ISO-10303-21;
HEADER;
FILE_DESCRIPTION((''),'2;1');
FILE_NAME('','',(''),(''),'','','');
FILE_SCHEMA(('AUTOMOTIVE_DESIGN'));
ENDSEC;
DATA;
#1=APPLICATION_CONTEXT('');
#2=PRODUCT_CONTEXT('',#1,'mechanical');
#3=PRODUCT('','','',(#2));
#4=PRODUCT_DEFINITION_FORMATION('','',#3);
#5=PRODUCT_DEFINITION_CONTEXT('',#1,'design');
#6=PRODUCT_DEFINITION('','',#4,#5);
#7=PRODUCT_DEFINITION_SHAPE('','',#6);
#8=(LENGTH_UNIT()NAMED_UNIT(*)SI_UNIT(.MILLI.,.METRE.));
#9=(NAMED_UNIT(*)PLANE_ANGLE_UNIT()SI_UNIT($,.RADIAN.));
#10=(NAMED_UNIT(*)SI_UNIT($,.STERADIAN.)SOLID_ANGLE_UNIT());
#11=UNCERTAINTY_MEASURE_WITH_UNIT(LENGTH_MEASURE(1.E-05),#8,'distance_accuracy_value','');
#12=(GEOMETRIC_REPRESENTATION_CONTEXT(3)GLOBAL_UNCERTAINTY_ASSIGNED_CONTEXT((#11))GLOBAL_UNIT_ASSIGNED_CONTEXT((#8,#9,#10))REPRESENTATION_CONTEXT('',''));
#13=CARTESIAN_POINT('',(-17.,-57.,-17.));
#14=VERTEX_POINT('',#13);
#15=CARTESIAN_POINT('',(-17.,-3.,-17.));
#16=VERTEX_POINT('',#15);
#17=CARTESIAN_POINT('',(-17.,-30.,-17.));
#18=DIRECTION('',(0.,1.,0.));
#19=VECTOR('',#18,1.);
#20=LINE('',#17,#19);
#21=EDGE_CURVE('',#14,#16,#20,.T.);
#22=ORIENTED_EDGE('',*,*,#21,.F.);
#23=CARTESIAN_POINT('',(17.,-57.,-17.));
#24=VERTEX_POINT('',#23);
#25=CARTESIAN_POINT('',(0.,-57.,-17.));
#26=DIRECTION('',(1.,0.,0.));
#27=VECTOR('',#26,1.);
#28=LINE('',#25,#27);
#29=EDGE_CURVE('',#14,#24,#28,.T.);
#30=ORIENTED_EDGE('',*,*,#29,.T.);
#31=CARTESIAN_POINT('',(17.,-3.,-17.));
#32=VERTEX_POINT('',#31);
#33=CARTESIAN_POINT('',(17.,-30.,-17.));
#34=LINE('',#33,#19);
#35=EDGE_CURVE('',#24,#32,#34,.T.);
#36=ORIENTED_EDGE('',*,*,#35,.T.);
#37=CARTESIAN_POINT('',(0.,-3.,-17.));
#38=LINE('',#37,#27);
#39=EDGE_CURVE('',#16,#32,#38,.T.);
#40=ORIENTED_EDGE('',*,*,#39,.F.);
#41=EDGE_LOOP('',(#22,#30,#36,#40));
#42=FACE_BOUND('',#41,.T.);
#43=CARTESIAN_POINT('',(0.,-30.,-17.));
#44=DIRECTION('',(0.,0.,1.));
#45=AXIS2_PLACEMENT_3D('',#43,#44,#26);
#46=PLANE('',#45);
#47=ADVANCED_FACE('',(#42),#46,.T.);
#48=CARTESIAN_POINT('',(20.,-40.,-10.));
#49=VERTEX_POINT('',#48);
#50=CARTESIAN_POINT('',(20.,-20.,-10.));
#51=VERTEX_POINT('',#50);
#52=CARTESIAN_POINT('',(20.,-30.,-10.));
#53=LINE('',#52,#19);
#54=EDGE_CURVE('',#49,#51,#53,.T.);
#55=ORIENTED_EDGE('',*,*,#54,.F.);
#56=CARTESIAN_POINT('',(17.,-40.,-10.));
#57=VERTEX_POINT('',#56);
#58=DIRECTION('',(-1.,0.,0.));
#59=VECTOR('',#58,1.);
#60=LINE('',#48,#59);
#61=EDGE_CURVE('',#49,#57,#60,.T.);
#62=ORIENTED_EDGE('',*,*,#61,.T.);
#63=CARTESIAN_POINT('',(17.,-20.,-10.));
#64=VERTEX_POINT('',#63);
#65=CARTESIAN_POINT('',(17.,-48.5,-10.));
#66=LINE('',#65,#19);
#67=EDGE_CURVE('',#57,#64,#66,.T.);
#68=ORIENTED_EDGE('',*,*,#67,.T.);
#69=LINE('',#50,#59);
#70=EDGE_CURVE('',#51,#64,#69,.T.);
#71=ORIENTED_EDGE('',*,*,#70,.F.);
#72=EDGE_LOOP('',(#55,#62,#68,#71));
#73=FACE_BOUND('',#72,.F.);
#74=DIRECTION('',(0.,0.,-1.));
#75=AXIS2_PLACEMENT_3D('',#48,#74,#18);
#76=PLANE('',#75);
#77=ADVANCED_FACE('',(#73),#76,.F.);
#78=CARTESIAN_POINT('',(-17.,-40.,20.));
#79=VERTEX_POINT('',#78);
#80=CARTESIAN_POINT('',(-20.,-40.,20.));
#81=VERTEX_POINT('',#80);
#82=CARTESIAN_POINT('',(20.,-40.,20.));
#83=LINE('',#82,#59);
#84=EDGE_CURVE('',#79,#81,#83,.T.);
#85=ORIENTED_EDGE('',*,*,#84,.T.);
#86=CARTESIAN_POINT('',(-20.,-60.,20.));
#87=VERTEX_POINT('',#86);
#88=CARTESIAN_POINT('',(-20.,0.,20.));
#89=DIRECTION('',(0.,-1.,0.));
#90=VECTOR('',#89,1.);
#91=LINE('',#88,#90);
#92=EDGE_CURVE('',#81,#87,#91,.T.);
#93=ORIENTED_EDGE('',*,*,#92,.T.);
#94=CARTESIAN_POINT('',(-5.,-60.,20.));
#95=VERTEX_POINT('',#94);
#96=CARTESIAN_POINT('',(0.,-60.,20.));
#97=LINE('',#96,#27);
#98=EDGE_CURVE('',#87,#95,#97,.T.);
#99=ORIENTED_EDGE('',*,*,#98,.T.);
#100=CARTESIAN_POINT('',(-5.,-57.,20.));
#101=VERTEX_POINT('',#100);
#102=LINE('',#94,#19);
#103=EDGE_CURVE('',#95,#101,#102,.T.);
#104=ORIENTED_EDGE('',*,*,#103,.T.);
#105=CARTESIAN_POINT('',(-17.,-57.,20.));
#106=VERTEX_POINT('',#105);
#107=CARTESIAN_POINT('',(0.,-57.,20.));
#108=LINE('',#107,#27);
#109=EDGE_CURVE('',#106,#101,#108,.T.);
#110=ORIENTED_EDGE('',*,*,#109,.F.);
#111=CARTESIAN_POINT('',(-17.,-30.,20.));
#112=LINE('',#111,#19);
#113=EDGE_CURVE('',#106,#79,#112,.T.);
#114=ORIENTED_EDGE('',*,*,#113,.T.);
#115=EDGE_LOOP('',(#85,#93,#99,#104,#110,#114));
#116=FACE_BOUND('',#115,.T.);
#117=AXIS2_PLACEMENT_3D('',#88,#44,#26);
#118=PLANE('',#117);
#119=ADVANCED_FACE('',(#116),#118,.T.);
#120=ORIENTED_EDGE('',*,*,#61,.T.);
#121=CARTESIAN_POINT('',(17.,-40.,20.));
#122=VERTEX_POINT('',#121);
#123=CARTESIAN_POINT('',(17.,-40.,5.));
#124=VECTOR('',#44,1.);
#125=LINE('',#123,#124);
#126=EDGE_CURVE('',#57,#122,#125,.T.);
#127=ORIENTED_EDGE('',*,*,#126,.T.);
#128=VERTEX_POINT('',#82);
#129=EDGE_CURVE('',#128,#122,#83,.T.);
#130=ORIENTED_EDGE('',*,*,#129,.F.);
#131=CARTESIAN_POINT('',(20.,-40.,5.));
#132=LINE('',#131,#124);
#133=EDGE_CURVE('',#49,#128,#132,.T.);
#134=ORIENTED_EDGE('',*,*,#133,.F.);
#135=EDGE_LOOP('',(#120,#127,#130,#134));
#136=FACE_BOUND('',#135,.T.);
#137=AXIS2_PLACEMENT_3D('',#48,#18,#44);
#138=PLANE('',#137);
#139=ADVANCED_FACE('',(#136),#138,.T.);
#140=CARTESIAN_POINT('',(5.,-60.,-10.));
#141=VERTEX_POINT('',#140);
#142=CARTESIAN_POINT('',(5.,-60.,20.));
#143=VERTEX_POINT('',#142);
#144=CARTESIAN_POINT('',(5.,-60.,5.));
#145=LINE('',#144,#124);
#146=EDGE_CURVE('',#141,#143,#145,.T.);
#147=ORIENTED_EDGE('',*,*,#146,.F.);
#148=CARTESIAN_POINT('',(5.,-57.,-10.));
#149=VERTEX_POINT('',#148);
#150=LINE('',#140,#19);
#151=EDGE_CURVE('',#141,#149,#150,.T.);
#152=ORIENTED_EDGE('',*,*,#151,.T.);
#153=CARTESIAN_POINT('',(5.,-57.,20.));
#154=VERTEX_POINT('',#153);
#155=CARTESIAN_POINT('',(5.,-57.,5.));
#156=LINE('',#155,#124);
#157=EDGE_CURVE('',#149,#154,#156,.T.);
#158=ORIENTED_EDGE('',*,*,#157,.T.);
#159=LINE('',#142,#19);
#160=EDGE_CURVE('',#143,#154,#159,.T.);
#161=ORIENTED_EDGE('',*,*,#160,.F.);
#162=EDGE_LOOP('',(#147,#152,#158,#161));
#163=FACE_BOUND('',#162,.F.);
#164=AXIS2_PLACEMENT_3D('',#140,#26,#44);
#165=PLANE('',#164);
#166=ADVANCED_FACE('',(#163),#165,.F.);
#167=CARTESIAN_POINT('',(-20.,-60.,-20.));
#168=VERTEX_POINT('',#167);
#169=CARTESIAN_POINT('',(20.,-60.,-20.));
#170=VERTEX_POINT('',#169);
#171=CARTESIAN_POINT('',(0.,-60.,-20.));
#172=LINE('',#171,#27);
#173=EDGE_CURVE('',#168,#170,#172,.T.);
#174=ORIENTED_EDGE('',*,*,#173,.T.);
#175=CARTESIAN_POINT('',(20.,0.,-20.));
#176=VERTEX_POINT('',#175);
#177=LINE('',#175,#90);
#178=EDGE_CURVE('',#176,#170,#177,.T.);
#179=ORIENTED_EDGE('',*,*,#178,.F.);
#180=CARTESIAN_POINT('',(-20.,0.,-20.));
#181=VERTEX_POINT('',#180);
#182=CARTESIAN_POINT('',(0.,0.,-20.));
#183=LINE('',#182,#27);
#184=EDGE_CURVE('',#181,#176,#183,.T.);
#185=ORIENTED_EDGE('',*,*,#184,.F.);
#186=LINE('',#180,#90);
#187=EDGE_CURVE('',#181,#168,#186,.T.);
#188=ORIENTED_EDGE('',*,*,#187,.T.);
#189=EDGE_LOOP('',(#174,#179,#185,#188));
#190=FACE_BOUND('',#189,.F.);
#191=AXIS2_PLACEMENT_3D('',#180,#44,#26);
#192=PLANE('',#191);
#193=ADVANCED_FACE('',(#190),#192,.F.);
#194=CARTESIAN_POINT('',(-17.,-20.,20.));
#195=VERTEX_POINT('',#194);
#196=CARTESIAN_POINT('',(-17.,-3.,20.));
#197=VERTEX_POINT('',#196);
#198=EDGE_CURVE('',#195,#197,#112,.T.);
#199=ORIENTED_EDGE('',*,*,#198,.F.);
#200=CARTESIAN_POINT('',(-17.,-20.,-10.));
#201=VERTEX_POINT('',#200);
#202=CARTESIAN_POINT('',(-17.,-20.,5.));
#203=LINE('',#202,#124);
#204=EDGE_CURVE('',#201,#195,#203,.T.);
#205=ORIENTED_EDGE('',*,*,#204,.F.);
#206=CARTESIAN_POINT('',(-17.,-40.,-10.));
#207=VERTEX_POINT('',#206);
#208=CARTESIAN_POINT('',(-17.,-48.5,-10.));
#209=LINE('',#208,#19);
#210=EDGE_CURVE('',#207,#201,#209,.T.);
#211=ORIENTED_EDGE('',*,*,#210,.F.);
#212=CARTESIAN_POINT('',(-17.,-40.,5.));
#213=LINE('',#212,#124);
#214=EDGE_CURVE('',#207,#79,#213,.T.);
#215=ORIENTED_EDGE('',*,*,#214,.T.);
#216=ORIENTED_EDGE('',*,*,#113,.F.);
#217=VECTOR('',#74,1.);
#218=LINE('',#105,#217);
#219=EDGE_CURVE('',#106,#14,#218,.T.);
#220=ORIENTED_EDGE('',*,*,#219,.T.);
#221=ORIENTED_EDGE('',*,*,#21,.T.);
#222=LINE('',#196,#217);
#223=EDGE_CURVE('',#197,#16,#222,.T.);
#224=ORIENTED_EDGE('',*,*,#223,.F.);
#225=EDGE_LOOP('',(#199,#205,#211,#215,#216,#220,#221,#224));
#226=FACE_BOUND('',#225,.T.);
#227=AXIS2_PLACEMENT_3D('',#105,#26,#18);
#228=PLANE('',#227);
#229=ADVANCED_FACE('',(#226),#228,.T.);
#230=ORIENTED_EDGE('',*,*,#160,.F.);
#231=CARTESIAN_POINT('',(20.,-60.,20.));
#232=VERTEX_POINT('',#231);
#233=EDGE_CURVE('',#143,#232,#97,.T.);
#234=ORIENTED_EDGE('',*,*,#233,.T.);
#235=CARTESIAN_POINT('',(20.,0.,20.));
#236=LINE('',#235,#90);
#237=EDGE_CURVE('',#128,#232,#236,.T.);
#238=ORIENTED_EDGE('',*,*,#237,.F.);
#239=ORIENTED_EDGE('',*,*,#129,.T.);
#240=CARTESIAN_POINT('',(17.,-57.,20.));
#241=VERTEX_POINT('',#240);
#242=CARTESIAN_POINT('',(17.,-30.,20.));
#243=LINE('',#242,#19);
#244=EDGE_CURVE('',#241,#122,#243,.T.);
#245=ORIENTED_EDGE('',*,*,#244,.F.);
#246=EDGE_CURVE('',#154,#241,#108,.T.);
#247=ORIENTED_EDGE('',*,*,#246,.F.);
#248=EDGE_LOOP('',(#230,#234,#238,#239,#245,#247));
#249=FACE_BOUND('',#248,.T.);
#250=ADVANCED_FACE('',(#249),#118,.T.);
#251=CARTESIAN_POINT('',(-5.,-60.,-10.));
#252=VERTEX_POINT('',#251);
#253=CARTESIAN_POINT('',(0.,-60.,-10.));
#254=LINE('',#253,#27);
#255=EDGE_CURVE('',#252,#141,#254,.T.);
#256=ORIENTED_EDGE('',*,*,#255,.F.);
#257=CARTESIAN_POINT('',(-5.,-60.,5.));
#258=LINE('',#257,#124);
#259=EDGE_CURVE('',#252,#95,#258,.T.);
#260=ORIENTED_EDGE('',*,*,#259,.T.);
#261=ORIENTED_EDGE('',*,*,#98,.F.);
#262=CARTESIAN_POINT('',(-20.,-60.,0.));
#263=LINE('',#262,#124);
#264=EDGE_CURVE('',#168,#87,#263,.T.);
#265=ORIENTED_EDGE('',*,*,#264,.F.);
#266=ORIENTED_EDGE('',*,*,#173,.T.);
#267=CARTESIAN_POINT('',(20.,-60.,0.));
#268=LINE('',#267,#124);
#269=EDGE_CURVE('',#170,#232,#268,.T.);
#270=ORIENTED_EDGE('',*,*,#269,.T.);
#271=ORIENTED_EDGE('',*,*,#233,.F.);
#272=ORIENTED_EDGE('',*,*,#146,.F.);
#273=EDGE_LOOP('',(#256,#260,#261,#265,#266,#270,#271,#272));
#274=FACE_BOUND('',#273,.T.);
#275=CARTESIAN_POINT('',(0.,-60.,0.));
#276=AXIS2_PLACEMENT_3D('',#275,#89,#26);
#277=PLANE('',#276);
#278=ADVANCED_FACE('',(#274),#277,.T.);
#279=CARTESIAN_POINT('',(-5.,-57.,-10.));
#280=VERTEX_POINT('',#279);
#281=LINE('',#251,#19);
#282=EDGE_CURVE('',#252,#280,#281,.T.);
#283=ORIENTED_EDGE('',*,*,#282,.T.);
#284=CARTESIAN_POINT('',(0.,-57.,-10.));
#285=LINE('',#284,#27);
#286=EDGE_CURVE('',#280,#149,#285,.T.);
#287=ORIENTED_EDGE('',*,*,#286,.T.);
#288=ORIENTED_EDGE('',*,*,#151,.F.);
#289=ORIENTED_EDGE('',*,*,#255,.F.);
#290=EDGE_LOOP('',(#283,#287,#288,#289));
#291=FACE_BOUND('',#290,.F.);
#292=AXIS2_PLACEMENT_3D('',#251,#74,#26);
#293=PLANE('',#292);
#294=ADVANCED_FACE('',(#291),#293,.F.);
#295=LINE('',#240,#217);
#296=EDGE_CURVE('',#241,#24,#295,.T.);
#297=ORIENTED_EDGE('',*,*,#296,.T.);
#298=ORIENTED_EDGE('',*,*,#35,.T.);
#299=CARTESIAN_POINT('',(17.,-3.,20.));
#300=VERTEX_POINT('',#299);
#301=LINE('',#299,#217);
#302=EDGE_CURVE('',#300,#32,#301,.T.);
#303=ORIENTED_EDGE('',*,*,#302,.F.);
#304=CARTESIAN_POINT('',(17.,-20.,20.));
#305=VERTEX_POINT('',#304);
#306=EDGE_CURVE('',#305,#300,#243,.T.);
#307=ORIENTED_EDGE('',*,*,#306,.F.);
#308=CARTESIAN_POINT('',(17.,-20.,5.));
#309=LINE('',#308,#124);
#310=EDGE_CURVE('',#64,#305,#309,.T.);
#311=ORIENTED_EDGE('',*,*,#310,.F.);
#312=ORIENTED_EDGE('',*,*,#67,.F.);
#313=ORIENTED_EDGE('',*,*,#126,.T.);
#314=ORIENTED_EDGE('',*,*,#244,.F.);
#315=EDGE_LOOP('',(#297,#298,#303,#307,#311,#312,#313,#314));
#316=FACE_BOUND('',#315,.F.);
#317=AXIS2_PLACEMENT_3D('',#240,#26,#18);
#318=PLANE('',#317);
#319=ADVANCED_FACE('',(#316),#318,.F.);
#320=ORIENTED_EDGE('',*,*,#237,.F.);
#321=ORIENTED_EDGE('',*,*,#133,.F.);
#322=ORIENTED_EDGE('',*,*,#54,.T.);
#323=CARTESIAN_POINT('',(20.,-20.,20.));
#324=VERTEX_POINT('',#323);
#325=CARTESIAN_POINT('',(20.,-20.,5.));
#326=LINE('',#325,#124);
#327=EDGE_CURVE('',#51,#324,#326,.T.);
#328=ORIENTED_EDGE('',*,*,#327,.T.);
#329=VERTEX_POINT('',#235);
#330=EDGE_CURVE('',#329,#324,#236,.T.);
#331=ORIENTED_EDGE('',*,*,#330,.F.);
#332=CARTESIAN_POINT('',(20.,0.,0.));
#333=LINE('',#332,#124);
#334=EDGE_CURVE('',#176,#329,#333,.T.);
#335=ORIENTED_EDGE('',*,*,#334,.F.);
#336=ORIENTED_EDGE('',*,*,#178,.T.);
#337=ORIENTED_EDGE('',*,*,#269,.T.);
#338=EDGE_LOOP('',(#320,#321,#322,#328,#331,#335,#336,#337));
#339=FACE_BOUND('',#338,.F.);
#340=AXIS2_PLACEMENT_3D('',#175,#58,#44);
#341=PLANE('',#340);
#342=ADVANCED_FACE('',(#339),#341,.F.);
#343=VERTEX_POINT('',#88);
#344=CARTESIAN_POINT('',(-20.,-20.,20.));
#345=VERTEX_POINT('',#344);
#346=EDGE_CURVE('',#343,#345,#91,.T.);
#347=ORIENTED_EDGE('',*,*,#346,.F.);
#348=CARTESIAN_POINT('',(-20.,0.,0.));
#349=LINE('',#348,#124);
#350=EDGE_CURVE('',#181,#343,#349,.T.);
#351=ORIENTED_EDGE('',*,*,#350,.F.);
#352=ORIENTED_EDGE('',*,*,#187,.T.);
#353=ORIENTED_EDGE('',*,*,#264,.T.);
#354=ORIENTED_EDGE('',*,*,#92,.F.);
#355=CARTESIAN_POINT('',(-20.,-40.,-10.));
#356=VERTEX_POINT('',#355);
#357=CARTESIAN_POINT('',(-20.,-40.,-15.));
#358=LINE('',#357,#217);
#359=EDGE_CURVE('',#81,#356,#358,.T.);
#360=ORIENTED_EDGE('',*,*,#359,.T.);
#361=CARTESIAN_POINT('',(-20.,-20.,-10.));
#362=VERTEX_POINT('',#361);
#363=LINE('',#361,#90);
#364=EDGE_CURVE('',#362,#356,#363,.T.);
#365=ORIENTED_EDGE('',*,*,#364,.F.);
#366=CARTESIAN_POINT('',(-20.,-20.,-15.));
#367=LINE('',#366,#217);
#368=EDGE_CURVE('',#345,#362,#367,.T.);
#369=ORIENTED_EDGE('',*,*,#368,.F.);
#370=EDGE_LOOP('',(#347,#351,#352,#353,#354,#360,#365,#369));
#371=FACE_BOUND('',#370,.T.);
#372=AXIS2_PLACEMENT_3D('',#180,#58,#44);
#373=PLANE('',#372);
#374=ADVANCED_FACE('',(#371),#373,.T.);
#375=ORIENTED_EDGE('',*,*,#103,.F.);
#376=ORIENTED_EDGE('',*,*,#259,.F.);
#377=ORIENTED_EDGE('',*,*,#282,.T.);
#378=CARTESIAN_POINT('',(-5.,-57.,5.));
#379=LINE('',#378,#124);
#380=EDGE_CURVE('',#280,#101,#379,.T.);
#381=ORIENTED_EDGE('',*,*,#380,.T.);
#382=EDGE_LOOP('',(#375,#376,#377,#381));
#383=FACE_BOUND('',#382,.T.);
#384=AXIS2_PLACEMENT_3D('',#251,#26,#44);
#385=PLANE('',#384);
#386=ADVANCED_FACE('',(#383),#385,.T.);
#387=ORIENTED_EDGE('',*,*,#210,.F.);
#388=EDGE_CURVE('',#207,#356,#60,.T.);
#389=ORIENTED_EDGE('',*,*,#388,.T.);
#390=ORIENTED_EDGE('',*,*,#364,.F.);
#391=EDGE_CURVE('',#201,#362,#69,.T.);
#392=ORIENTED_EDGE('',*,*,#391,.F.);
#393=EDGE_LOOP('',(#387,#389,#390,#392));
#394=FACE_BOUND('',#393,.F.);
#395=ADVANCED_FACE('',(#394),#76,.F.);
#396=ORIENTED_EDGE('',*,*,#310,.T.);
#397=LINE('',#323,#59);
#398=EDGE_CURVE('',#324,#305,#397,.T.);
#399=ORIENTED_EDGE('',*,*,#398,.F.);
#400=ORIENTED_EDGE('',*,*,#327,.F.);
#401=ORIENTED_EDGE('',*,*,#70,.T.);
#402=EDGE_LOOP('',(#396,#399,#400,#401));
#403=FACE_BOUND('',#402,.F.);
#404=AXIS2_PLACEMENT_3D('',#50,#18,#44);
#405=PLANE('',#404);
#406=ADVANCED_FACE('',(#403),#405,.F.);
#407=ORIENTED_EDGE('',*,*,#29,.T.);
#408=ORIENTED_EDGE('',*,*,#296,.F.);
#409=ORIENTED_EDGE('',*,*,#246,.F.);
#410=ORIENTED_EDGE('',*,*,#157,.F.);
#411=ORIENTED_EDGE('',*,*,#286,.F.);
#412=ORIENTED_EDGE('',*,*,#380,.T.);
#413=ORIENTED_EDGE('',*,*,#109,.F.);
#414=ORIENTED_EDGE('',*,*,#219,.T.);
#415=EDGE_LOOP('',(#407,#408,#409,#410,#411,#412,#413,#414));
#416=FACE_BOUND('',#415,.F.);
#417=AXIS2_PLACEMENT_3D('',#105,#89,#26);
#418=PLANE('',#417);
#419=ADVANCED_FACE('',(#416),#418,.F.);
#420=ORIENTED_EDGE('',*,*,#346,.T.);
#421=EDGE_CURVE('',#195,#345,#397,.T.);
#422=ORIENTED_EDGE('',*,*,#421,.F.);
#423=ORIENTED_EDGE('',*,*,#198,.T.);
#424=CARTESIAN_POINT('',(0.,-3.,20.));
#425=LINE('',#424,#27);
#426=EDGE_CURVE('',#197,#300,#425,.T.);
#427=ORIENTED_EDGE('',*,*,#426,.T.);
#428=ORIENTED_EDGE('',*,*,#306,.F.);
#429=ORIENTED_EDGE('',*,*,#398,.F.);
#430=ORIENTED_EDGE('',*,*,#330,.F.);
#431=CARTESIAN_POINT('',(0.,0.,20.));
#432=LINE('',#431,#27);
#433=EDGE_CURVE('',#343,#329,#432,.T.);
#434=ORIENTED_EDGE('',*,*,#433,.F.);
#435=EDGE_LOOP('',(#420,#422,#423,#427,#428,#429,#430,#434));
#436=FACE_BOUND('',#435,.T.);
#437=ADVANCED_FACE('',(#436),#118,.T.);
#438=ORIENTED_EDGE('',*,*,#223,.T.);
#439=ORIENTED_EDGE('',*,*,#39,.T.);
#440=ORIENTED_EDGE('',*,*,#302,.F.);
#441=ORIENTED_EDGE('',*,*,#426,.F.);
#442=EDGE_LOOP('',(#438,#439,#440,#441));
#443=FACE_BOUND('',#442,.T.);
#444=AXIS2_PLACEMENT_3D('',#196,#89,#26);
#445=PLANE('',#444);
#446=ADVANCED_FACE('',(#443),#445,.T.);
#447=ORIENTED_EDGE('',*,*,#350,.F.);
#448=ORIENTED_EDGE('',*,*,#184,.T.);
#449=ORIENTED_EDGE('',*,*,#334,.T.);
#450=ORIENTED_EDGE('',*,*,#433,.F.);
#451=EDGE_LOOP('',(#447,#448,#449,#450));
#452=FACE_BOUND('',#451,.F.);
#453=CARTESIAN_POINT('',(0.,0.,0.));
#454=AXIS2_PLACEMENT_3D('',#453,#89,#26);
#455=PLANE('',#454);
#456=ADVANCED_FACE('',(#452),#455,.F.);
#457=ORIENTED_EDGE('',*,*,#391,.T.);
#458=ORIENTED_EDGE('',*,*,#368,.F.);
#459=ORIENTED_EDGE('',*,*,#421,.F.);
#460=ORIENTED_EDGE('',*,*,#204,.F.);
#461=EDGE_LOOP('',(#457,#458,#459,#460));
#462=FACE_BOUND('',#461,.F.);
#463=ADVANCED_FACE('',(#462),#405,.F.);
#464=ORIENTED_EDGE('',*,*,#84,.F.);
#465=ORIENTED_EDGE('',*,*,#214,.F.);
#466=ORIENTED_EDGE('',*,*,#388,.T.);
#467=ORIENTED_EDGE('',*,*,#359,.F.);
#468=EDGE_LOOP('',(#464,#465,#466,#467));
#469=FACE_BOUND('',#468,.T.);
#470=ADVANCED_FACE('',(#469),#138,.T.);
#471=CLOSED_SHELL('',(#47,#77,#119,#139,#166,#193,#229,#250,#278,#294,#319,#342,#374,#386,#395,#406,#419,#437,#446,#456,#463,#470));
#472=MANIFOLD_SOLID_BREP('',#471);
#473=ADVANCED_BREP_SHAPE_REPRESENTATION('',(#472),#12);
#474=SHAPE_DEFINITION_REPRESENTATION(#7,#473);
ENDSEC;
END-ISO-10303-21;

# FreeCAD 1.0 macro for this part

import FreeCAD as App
import Part
import Sketcher
from FreeCAD import Vector
Q = App.Units.Quantity


def add_polygon(sketch, points):
    """Adds a closed chain of lines whose ends are joined by coincident constraints."""
    first, n = sketch.GeometryCount, len(points)
    for a, b in zip(points, points[1:] + points[:1]):
        sketch.addGeometry(Part.LineSegment(App.Vector(*a, 0), App.Vector(*b, 0)), False)
    for i in range(n):
        sketch.addConstraint(Sketcher.Constraint("Coincident", first + i, 2, first + (i + 1) % n, 1))

doc = App.newDocument("Part")
body = doc.addObject("PartDesign::Body", "Body")

# Sketch on XZ plane
sketch1 = body.newObject("Sketcher::SketchObject", "Sketch")
sketch1.AttachmentSupport = (doc.getObject("XZ_Plane"), [""])
sketch1.MapMode = "FlatFace"
add_polygon(sketch1, [(-20, 20), (-20, -20), (20, -20), (20, 20)])  # lines 0-3
sketch1.addConstraint([
    Sketcher.Constraint("Vertical", 0),
    Sketcher.Constraint("Horizontal", 1),
    Sketcher.Constraint("Vertical", 2),
    Sketcher.Constraint("Horizontal", 3),
    Sketcher.Constraint("Symmetric", 0, 2, 2, 2, -1, 1),
    Sketcher.Constraint("Equal", 3, 0),
    Sketcher.Constraint("DistanceX", 1, 1, 1, 2, Q("40 mm")),
])
pad1 = body.newObject("PartDesign::Pad", "Pad")
pad1.Profile = sketch1
pad1.Length = 60

# Sketch on XY plane
sketch2 = body.newObject("Sketcher::SketchObject", "Sketch001")
sketch2.AttachmentSupport = (doc.getObject("XY_Plane"), [""])
sketch2.MapMode = "FlatFace"
sketch2.AttachmentOffset = App.Placement(Vector(0, 0, 20), App.Rotation())
add_polygon(sketch2, [(-17, -3), (-17, -57), (17, -57), (17, -3)])  # lines 0-3
sketch2.addConstraint([
    Sketcher.Constraint("Vertical", 0),
    Sketcher.Constraint("Horizontal", 1),
    Sketcher.Constraint("Vertical", 2),
    Sketcher.Constraint("Horizontal", 3),
    Sketcher.Constraint("DistanceX", 1, 1, 1, 2, Q("34 mm")),
    Sketcher.Constraint("DistanceY", 0, 2, 0, 1, Q("54 mm")),
    Sketcher.Constraint("DistanceX", 0, 2, -1, 1, Q("17 mm")),
    Sketcher.Constraint("DistanceY", 0, 2, -1, 1, Q("57 mm")),
])
pocket1 = body.newObject("PartDesign::Pocket", "Pocket")
pocket1.Profile = sketch2
pocket1.Length = 37

# Sketch on YZ plane
sketch3 = body.newObject("Sketcher::SketchObject", "Sketch002")
sketch3.AttachmentSupport = (doc.getObject("YZ_Plane"), [""])
sketch3.MapMode = "FlatFace"
sketch3.AttachmentOffset = App.Placement(Vector(0, 0, 20), App.Rotation())
add_polygon(sketch3, [(-40, 20), (-40, -10), (-20, -10), (-20, 20)])  # lines 0-3
sketch3.addConstraint([
    Sketcher.Constraint("Vertical", 0),
    Sketcher.Constraint("Horizontal", 1),
    Sketcher.Constraint("Vertical", 2),
    Sketcher.Constraint("Horizontal", 3),
    Sketcher.Constraint("DistanceX", 1, 1, 1, 2, Q("20 mm")),
    Sketcher.Constraint("DistanceY", 0, 2, 0, 1, Q("30 mm")),
    Sketcher.Constraint("DistanceX", 0, 2, -1, 1, Q("40 mm")),
    Sketcher.Constraint("DistanceY", 0, 2, -1, 1, Q("10 mm")),
])
pocket2 = body.newObject("PartDesign::Pocket", "Pocket001")
pocket2.Profile = sketch3
pocket2.Type = "ThroughAll"

# Sketch on XZ plane
sketch4 = body.newObject("Sketcher::SketchObject", "Sketch003")
sketch4.AttachmentSupport = (doc.getObject("XZ_Plane"), [""])
sketch4.MapMode = "FlatFace"
sketch4.AttachmentOffset = App.Placement(Vector(0, 0, 60), App.Rotation())
add_polygon(sketch4, [(-5, 20), (-5, -10), (5, -10), (5, 20)])  # lines 0-3
sketch4.addConstraint([
    Sketcher.Constraint("Vertical", 0),
    Sketcher.Constraint("Horizontal", 1),
    Sketcher.Constraint("Vertical", 2),
    Sketcher.Constraint("Horizontal", 3),
    Sketcher.Constraint("DistanceX", 1, 1, 1, 2, Q("10 mm")),
    Sketcher.Constraint("DistanceY", 0, 2, 0, 1, Q("30 mm")),
    Sketcher.Constraint("DistanceX", 0, 2, -1, 1, Q("5 mm")),
    Sketcher.Constraint("DistanceY", 0, 2, -1, 1, Q("10 mm")),
])
pocket3 = body.newObject("PartDesign::Pocket", "Pocket002")
pocket3.Profile = sketch4
pocket3.Length = 3

doc.recompute()
